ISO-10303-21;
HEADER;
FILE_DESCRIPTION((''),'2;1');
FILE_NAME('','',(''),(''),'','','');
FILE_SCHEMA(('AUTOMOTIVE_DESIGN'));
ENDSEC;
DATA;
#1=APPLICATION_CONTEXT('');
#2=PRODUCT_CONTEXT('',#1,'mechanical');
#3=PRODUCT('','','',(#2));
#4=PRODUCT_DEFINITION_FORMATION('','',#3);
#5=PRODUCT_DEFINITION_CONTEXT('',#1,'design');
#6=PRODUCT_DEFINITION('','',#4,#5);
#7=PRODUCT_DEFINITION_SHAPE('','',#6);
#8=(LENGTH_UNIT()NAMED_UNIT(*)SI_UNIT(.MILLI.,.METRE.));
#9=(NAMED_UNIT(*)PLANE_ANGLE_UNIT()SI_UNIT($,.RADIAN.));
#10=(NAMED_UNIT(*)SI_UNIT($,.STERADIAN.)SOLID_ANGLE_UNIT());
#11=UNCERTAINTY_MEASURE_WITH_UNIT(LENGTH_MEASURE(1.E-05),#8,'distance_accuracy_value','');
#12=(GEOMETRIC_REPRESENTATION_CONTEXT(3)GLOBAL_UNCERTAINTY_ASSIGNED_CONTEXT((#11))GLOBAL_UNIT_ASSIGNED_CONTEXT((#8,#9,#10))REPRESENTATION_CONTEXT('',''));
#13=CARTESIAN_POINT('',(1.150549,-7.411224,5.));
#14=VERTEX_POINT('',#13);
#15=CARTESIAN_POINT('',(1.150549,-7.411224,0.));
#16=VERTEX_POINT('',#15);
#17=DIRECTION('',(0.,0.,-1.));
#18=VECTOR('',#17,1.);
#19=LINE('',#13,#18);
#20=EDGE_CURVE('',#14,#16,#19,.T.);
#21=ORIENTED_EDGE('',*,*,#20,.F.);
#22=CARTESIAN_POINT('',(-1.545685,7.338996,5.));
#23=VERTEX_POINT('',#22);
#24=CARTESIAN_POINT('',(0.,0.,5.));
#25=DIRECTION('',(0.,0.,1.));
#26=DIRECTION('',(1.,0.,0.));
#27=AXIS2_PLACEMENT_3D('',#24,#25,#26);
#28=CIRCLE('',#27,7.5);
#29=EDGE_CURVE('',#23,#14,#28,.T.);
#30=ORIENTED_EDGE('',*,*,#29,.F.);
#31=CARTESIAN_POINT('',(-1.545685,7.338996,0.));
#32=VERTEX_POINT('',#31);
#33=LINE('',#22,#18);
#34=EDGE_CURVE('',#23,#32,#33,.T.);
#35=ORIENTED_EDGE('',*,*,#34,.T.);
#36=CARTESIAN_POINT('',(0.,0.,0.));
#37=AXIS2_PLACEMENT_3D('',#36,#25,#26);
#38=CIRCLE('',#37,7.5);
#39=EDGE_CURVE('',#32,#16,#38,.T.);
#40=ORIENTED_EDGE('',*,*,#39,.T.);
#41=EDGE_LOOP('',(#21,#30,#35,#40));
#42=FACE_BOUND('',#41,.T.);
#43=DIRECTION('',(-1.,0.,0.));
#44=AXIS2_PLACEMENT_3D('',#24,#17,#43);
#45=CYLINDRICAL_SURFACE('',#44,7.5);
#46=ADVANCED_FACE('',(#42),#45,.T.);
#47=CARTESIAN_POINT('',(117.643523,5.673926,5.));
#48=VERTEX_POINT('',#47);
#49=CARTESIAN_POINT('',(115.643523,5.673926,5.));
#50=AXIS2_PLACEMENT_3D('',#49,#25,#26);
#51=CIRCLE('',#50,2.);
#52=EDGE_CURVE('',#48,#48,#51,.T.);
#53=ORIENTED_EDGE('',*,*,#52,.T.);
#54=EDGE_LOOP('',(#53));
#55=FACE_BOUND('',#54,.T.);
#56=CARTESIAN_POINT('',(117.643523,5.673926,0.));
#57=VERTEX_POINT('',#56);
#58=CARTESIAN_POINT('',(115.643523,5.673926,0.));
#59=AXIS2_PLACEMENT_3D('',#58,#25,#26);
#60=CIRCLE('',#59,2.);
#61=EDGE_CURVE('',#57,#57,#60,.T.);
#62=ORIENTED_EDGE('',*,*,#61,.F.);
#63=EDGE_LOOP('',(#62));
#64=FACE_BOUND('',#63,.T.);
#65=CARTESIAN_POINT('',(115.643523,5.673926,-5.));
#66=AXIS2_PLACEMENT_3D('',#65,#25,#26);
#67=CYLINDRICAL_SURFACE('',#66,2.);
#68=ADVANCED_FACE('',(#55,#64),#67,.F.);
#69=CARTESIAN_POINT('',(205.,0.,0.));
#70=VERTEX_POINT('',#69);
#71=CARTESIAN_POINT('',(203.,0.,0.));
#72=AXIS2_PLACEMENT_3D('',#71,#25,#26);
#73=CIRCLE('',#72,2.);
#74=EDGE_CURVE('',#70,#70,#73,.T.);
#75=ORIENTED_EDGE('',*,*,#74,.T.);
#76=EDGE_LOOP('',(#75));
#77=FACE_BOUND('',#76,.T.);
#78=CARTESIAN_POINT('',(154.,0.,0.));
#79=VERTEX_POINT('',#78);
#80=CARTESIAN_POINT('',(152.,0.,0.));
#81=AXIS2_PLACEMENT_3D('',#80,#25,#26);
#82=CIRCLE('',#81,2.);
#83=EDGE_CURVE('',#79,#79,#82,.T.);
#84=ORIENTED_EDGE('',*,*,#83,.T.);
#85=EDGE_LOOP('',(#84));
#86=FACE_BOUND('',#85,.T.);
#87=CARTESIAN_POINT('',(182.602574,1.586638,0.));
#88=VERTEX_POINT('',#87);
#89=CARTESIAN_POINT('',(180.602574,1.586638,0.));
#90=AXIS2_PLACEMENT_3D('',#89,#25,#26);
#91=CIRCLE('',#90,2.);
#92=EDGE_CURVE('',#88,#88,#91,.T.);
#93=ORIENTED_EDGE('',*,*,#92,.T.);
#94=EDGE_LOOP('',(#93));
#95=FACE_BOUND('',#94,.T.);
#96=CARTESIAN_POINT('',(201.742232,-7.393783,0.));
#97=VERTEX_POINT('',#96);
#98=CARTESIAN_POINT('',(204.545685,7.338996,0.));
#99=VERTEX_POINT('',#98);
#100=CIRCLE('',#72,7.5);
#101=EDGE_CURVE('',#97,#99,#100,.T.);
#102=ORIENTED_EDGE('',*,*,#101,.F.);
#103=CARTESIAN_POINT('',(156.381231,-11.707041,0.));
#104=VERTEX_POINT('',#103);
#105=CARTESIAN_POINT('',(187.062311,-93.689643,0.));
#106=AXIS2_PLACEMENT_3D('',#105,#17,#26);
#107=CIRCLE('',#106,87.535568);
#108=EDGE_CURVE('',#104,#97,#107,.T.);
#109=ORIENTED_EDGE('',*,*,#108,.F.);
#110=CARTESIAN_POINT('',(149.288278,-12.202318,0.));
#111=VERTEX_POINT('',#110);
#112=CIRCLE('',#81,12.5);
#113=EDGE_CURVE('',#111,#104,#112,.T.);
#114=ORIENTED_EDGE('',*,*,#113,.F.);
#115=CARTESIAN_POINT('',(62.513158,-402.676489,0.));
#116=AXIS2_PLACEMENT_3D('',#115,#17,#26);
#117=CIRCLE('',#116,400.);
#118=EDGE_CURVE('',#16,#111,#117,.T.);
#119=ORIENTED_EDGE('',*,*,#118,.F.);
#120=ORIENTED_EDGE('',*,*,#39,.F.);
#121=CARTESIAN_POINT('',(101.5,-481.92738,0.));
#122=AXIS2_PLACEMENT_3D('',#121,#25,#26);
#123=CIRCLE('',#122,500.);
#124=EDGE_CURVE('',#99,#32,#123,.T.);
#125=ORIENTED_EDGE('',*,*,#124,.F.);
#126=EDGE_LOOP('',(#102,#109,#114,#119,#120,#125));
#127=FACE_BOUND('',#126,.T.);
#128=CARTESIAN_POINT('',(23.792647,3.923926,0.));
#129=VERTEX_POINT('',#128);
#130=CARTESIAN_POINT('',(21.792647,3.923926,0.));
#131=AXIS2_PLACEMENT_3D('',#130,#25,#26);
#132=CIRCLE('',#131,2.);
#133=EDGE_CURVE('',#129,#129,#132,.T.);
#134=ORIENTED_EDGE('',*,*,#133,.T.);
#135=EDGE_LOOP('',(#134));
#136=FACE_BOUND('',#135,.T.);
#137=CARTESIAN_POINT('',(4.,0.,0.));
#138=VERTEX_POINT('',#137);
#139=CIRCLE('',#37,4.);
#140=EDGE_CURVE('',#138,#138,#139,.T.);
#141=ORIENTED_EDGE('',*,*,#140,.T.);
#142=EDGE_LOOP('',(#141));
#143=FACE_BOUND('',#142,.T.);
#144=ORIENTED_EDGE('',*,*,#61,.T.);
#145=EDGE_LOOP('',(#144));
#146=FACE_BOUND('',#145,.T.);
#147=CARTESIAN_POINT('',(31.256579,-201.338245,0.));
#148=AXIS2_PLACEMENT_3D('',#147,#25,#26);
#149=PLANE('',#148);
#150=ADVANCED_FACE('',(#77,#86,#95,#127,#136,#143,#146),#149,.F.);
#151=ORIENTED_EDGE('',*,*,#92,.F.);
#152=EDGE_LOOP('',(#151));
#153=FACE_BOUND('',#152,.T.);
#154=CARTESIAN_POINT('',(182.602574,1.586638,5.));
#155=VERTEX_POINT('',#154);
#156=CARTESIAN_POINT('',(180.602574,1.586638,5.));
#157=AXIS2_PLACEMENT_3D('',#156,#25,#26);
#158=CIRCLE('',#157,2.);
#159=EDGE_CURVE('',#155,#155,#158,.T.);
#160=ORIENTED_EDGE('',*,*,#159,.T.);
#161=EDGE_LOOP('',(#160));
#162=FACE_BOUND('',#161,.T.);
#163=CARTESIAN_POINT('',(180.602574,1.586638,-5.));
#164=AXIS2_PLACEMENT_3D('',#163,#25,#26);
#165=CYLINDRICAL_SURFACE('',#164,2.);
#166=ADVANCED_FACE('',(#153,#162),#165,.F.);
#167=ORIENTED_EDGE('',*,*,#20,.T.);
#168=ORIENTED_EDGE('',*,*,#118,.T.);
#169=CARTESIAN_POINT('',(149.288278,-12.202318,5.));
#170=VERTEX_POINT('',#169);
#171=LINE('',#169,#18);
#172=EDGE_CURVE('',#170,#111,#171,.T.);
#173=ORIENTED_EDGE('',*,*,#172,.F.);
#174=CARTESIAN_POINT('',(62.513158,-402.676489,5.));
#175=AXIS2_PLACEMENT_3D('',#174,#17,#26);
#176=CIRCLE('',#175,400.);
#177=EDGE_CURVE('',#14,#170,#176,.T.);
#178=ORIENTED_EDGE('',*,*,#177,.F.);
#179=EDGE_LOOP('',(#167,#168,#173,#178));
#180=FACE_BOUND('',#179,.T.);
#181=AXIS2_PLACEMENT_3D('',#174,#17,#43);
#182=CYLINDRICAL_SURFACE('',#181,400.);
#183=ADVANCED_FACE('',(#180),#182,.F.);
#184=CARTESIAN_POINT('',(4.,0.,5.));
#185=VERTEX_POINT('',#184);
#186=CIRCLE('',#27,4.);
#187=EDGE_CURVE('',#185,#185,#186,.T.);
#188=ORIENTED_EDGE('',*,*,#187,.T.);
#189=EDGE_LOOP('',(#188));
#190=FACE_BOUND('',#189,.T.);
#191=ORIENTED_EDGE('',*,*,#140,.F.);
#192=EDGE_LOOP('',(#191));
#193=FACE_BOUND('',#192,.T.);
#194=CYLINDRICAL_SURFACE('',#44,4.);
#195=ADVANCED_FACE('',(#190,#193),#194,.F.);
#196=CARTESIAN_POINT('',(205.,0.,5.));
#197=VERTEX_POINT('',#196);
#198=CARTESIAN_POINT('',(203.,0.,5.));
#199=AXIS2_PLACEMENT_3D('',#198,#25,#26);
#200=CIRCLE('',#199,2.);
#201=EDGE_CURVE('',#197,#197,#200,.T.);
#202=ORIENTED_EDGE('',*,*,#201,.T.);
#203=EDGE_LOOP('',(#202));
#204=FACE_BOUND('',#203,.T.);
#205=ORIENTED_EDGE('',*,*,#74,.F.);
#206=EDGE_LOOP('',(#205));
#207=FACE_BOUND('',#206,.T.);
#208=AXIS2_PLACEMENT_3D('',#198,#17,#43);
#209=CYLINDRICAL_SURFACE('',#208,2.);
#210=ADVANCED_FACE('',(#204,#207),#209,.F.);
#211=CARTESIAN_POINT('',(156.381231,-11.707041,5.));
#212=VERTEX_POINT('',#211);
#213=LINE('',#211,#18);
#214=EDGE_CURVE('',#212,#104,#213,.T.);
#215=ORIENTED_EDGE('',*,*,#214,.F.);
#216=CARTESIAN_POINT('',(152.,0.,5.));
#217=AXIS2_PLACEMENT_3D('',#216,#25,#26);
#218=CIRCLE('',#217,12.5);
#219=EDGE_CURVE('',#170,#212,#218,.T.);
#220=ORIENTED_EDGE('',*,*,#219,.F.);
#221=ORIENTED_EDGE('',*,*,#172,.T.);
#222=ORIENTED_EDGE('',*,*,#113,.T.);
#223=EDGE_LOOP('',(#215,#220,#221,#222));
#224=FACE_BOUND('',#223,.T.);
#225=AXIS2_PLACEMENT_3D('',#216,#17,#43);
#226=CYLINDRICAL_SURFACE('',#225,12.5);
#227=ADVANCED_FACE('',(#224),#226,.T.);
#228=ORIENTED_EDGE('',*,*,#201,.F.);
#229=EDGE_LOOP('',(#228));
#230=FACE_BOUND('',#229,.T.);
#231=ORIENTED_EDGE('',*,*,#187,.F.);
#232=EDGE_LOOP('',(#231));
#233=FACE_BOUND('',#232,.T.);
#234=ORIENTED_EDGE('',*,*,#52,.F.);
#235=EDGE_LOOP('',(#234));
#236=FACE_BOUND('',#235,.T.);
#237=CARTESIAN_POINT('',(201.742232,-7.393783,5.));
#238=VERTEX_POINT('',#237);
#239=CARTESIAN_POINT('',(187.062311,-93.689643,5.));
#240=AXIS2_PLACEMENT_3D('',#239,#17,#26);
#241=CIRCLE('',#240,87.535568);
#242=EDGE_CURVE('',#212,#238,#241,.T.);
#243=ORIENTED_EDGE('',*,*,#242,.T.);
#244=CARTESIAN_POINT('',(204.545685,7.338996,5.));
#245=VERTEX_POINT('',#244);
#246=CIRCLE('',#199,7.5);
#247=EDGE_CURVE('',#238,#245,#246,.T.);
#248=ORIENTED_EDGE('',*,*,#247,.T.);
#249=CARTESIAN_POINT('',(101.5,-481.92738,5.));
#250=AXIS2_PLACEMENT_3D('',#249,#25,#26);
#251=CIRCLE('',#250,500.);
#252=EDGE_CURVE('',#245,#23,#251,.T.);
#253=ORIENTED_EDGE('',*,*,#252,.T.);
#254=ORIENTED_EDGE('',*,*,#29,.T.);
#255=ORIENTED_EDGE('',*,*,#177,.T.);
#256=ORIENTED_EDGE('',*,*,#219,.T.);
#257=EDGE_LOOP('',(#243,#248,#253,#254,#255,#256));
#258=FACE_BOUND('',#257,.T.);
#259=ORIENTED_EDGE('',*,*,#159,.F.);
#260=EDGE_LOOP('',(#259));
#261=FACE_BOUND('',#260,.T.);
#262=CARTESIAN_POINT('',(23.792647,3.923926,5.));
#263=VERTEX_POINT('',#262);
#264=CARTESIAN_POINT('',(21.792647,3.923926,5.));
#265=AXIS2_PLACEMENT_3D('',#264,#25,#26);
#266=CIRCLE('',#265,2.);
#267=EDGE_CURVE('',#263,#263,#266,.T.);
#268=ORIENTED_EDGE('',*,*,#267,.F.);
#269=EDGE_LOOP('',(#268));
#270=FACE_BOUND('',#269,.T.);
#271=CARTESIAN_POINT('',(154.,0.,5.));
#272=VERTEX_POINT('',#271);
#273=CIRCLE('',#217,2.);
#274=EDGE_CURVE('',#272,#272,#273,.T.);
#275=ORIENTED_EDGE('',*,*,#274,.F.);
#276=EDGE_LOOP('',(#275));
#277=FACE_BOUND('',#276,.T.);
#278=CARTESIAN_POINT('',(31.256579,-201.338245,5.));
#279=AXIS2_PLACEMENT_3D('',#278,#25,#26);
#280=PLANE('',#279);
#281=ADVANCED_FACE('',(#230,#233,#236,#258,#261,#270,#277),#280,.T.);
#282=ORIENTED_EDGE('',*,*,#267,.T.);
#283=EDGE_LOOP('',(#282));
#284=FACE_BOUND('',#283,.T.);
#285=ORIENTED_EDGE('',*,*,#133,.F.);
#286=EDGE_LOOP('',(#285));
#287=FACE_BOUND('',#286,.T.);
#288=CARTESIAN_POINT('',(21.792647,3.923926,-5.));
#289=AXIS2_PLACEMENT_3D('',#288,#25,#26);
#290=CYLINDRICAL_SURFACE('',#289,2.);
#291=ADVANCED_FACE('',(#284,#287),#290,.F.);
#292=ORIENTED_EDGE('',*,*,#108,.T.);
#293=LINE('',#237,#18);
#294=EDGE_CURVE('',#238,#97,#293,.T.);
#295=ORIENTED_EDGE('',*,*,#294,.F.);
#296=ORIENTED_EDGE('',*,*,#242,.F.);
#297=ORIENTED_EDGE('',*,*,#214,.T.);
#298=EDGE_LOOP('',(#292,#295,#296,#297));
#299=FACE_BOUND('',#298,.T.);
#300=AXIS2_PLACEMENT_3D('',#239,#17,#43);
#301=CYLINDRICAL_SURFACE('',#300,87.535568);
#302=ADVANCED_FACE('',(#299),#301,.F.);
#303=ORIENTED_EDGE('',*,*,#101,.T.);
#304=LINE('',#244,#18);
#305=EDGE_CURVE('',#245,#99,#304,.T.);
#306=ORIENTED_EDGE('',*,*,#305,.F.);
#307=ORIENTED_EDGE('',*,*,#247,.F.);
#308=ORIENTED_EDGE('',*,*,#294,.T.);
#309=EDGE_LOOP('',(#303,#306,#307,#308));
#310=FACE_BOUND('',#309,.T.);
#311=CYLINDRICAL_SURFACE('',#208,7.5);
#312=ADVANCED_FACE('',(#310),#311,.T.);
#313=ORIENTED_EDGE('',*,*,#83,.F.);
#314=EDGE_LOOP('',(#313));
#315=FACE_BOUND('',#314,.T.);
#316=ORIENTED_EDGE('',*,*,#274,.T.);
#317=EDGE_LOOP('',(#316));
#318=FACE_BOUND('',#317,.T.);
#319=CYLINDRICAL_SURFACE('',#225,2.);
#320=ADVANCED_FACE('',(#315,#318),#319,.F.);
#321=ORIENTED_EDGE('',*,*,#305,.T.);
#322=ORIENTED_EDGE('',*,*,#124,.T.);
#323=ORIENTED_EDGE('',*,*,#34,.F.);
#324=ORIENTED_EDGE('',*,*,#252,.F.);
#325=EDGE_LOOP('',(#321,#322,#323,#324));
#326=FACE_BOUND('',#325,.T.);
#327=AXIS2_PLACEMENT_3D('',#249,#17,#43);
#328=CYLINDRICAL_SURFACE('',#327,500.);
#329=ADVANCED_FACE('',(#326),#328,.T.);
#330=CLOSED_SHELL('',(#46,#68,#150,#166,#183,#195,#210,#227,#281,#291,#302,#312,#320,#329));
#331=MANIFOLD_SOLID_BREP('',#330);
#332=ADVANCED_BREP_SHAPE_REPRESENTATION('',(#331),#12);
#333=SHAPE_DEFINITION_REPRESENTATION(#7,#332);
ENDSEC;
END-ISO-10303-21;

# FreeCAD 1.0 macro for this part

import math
import FreeCAD as App
import Part
import Sketcher
from FreeCAD import Vector

doc = App.newDocument("Part")
body = doc.addObject("PartDesign::Body", "Body")

sketch1 = body.newObject("Sketcher::SketchObject", "Sketch")
sketch1.AttachmentSupport = (doc.getObject("XY_Plane"), [""])
sketch1.MapMode = "FlatFace"
sketch1.addGeometry(Part.ArcOfCircle(Part.Circle(Vector(0, 0, 0), Vector(0, 0, 1), 7.5), math.radians(102), math.radians(279)), False)
sketch1.addGeometry(Part.ArcOfCircle(Part.Circle(Vector(62.5, -402.7, 0), Vector(0, 0, 1), 400), math.radians(77), math.radians(99)), False)
sketch1.addGeometry(Part.ArcOfCircle(Part.Circle(Vector(152, 0, 0), Vector(0, 0, 1), 12.5), math.radians(-103), math.radians(-69)), False)
sketch1.addGeometry(Part.ArcOfCircle(Part.Circle(Vector(187.1, -93.7, 0), Vector(0, 0, 1), 87.5), math.radians(80), math.radians(111)), False)
sketch1.addGeometry(Part.ArcOfCircle(Part.Circle(Vector(203, 0, 0), Vector(0, 0, 1), 7.5), math.radians(-100), math.radians(78)), False)
sketch1.addGeometry(Part.ArcOfCircle(Part.Circle(Vector(101.5, -481.9, 0), Vector(0, 0, 1), 500), math.radians(78), math.radians(102)), False)
sketch1.addGeometry(Part.Circle(Vector(0, 0, 0), Vector(0, 0, 1), 4), False)
sketch1.addGeometry(Part.Circle(Vector(152, 0, 0), Vector(0, 0, 1), 2), False)
sketch1.addGeometry(Part.Circle(Vector(203, 0, 0), Vector(0, 0, 1), 2), False)
sketch1.addConstraint(Sketcher.Constraint("Tangent", 0, 2, 1, 2))
sketch1.addConstraint(Sketcher.Constraint("Tangent", 1, 1, 2, 1))
sketch1.addConstraint(Sketcher.Constraint("Tangent", 2, 2, 3, 2))
sketch1.addConstraint(Sketcher.Constraint("Tangent", 3, 1, 4, 1))
sketch1.addConstraint(Sketcher.Constraint("Tangent", 4, 2, 5, 1))
sketch1.addConstraint(Sketcher.Constraint("Tangent", 5, 2, 0, 1))
sketch1.addConstraint(Sketcher.Constraint("Coincident", 0, 3, -1, 1))
sketch1.addConstraint(Sketcher.Constraint("Coincident", 6, 3, -1, 1))
sketch1.addConstraint(Sketcher.Constraint("Coincident", 7, 3, 2, 3))
sketch1.addConstraint(Sketcher.Constraint("Coincident", 8, 3, 4, 3))
sketch1.addConstraint(Sketcher.Constraint("Equal", 0, 4))
sketch1.addConstraint(Sketcher.Constraint("Equal", 7, 8))
sketch1.addConstraint(Sketcher.Constraint("PointOnObject", 2, 3, -1))
sketch1.addConstraint(Sketcher.Constraint("PointOnObject", 4, 3, -1))
sketch1.addConstraint(Sketcher.Constraint("Diameter", 6, 8.0))
sketch1.addConstraint(Sketcher.Constraint("Diameter", 7, 4.0))
sketch1.addConstraint(Sketcher.Constraint("Radius", 1, 400.0))
sketch1.addConstraint(Sketcher.Constraint("Radius", 5, 500.0))
sketch1.addConstraint(Sketcher.Constraint("Radius", 0, 7.5))
sketch1.addConstraint(Sketcher.Constraint("Radius", 2, 12.5))
sketch1.addConstraint(Sketcher.Constraint("DistanceX", -1, 1, 2, 3, 152.0))
sketch1.addConstraint(Sketcher.Constraint("DistanceX", -1, 1, 4, 3, 203.0))
sketch1.addConstraint(Sketcher.Constraint("Radius", 3, 87.535568))
pad1 = body.newObject("PartDesign::Pad", "Pad")
pad1.Profile = sketch1
pad1.Length = 5

sketch2 = body.newObject("Sketcher::SketchObject", "Sketch001")
sketch2.AttachmentSupport = (doc.getObject("XY_Plane"), [""])
sketch2.MapMode = "FlatFace"
sketch2.AttachmentOffset = App.Placement(Vector(0, 0, 5), App.Rotation())
sketch2.addGeometry(Part.Circle(Vector(21.8, 3.9, 0), Vector(0, 0, 1), 2), False)
sketch2.addGeometry(Part.Circle(Vector(115.6, 5.7, 0), Vector(0, 0, 1), 2), False)
sketch2.addGeometry(Part.Circle(Vector(180.6, 1.6, 0), Vector(0, 0, 1), 2), False)
sketch2.addConstraint(Sketcher.Constraint("Equal", 0, 1))
sketch2.addConstraint(Sketcher.Constraint("Equal", 1, 2))
sketch2.addConstraint(Sketcher.Constraint("Diameter", 0, 4.0))
sketch2.addConstraint(Sketcher.Constraint("DistanceY", 0, 3, 1, 3, 1.75))
sketch2.addConstraint(Sketcher.Constraint("DistanceY", -1, 1, 2, 3, 1.586638))
sketch2.addConstraint(Sketcher.Constraint("DistanceX", 1, 3, 2, 3, 64.959051))
sketch2.addConstraint(Sketcher.Constraint("DistanceX", -1, 1, 0, 3, 21.792647))
sketch2.addConstraint(Sketcher.Constraint("DistanceY", -1, 1, 0, 3, 3.923926))
sketch2.addConstraint(Sketcher.Constraint("DistanceX", -1, 1, 1, 3, 115.643523))
pocket1 = body.newObject("PartDesign::Pocket", "Pocket")
pocket1.Profile = sketch2
pocket1.Length = 10

doc.recompute()
